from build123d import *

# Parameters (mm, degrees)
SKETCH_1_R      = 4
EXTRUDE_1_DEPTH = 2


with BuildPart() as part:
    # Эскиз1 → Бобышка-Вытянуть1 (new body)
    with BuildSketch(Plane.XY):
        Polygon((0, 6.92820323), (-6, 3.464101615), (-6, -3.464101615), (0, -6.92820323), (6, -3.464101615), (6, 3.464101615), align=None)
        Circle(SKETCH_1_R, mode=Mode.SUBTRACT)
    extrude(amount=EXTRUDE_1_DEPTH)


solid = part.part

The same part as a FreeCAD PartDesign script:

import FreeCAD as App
import Part
import Sketcher
Q = App.Units.Quantity

doc = App.newDocument("Part")
params = doc.addObject("Spreadsheet::Sheet", "Params")
for row, (alias, value) in enumerate([
    ("sketch1_diameter", "8 mm"),
    ("pad1_length", "2 mm"),
], start=1):
    params.set(f"A{row}", alias)
    params.set(f"B{row}", "=" + value)
    params.setAlias(f"B{row}", alias)

body = doc.addObject("PartDesign::Body", "Body")

sketch1 = doc.addObject("Sketcher::SketchObject", "Sketch")
body.addObject(sketch1)
sketch1.AttachmentSupport = (doc.XY_Plane, [""])
sketch1.MapMode = "FlatFace"
sketch1.addGeometry(Part.LineSegment(App.Vector(0, 6.9, 0), App.Vector(-6, 3.5, 0)), False)
sketch1.addGeometry(Part.LineSegment(App.Vector(-6, 3.5, 0), App.Vector(-6, -3.5, 0)), False)
sketch1.addGeometry(Part.LineSegment(App.Vector(-6, -3.5, 0), App.Vector(0, -6.9, 0)), False)
sketch1.addGeometry(Part.LineSegment(App.Vector(0, -6.9, 0), App.Vector(6, -3.5, 0)), False)
sketch1.addGeometry(Part.LineSegment(App.Vector(6, -3.5, 0), App.Vector(6, 3.5, 0)), False)
sketch1.addGeometry(Part.LineSegment(App.Vector(6, 3.5, 0), App.Vector(0, 6.9, 0)), False)
sketch1.addGeometry(Part.Circle(App.Vector(0, 0, 0), App.Vector(0, 0, 1), 4), False)
sketch1.addConstraint(Sketcher.Constraint("Coincident", 0, 2, 1, 1))
sketch1.addConstraint(Sketcher.Constraint("Coincident", 1, 2, 2, 1))
sketch1.addConstraint(Sketcher.Constraint("Coincident", 2, 2, 3, 1))
sketch1.addConstraint(Sketcher.Constraint("Coincident", 3, 2, 4, 1))
sketch1.addConstraint(Sketcher.Constraint("Coincident", 4, 2, 5, 1))
sketch1.addConstraint(Sketcher.Constraint("Coincident", 5, 2, 0, 1))
sketch1.addConstraint(Sketcher.Constraint("Vertical", 1))
sketch1.addConstraint(Sketcher.Constraint("Vertical", 4))
sketch1.addConstraint(Sketcher.Constraint("Coincident", 6, 3, -1, 1))
sketch1.addConstraint(Sketcher.Constraint("Symmetric", 0, 2, 3, 2, -1, 1))
sketch1.addConstraint(Sketcher.Constraint("Symmetric", 2, 2, 5, 2, -1, 1))
sketch1.addConstraint(Sketcher.Constraint("PointOnObject", 2, 2, -2))
sketch1.addConstraint(Sketcher.Constraint("Parallel", 2, 5))
sketch1.addConstraint(Sketcher.Constraint("Horizontal", 1, 2, 3, 2))
sketch1.addConstraint(Sketcher.Constraint("Diameter", 6, Q("8 mm")))
sketch1.addConstraint(Sketcher.Constraint("Angle", 0, Q("-150 deg")))
sketch1.addConstraint(Sketcher.Constraint("DistanceX", 0, 2, -1, 1, Q("6 mm")))
sketch1.addConstraint(Sketcher.Constraint("DistanceY", -1, 1, 0, 2, Q("3.464102 mm")))
sketch1.setExpression("Constraints[14]", "Params.sketch1_diameter")
pad1 = doc.addObject("PartDesign::Pad", "Pad")
body.addObject(pad1)
pad1.Profile = sketch1
pad1.setExpression("Length", "Params.pad1_length")

doc.recompute()
